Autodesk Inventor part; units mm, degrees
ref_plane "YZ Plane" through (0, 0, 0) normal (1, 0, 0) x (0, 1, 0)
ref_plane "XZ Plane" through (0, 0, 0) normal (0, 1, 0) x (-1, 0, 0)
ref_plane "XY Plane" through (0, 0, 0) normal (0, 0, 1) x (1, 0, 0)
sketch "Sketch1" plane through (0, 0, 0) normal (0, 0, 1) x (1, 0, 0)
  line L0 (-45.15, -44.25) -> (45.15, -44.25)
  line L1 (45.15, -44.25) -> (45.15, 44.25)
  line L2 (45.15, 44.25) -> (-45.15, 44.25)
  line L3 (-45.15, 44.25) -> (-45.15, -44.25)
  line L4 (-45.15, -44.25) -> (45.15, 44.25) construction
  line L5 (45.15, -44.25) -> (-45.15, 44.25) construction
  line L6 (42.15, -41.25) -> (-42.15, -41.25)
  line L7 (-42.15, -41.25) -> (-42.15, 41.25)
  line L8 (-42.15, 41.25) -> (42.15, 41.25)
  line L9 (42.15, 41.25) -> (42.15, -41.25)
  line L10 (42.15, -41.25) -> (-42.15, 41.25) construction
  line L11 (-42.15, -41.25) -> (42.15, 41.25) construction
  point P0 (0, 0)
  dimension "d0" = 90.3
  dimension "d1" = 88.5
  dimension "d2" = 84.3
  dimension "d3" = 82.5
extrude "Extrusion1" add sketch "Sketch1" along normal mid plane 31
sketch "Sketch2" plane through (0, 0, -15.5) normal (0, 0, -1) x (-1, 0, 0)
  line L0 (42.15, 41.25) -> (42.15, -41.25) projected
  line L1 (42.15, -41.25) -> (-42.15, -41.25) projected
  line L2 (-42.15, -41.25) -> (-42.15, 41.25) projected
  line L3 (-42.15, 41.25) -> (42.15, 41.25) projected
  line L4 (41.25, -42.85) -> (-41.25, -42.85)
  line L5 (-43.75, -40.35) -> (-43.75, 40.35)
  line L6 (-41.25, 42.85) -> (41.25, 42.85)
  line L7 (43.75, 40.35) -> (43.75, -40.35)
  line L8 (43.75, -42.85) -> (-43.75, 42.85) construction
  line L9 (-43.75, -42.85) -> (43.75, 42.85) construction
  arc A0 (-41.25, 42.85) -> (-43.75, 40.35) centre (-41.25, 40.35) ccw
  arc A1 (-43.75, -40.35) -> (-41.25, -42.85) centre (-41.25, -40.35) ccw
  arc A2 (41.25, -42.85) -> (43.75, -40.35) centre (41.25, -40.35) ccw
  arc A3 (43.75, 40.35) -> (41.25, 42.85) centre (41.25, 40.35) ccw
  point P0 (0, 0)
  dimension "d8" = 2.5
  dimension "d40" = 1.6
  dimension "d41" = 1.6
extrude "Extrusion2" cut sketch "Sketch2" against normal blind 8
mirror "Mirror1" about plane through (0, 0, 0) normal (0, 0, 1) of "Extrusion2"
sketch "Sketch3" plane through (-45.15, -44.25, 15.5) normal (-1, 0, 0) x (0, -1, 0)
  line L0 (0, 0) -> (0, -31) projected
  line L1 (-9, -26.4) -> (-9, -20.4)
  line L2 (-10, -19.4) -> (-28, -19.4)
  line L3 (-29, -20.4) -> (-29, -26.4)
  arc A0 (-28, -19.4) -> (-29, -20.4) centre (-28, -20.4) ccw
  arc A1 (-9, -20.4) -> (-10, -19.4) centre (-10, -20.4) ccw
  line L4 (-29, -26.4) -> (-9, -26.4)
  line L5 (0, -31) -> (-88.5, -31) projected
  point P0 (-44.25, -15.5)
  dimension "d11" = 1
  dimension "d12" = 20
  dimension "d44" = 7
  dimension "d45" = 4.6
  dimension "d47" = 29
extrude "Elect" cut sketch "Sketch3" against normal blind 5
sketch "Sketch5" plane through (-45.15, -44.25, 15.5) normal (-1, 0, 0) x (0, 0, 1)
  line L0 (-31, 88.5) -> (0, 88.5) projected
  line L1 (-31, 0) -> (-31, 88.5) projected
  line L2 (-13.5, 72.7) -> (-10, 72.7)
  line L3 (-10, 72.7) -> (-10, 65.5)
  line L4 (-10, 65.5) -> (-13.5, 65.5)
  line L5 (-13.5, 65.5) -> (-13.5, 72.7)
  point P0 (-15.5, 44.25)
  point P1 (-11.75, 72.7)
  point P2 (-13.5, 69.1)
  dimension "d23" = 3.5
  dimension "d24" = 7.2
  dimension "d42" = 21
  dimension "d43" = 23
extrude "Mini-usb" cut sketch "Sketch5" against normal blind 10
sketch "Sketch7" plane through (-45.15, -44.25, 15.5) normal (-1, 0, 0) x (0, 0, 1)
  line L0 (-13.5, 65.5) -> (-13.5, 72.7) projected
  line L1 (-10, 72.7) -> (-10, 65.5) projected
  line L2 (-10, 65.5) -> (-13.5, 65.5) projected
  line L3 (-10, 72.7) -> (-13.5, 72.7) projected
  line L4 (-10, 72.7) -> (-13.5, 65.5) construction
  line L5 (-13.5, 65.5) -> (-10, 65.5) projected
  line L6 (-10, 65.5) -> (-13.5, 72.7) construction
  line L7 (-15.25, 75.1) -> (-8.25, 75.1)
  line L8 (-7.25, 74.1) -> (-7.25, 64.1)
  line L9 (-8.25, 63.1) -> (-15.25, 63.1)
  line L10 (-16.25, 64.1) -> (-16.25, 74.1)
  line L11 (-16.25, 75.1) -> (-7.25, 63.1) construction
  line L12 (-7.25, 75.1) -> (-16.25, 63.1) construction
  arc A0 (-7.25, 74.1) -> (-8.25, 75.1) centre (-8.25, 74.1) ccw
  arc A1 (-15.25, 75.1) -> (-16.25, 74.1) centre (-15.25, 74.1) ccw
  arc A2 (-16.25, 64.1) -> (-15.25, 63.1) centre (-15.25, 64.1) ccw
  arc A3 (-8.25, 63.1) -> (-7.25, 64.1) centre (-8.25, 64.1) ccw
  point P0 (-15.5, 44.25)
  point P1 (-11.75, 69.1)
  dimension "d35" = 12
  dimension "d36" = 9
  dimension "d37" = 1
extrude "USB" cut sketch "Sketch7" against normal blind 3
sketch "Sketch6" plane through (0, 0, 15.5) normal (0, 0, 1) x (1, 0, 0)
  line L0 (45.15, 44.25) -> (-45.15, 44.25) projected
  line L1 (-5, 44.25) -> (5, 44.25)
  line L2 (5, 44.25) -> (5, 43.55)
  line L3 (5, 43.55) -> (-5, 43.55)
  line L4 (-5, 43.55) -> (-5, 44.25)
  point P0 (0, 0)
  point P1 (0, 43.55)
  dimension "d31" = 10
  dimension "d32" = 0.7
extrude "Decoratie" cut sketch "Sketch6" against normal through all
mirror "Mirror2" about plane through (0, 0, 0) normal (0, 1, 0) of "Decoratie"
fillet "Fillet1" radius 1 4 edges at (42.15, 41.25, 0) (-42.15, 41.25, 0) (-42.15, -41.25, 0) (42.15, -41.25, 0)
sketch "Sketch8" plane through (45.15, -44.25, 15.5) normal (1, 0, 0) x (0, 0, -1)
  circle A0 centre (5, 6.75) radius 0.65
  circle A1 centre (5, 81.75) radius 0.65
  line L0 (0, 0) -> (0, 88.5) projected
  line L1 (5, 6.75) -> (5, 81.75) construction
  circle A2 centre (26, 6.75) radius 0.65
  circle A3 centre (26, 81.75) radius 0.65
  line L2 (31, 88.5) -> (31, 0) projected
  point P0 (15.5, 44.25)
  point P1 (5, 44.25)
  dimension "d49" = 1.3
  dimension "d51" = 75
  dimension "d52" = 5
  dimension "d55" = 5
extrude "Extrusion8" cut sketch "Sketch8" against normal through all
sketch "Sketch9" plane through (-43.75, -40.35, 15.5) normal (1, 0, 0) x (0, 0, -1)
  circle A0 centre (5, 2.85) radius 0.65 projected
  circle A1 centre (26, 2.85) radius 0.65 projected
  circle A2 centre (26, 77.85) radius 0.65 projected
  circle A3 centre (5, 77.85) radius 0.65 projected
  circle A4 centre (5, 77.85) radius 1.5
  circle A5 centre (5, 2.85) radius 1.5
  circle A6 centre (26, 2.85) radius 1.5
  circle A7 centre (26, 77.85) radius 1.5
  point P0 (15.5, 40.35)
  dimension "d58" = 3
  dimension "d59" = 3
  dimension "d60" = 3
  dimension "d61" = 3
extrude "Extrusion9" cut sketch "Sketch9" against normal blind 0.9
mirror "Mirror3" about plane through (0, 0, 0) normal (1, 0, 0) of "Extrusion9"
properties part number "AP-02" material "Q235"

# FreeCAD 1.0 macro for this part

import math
import FreeCAD as App
import Part
import Sketcher

V = App.Vector


def edges_at(feature, points):
    """Names of the edges that pass closest to the given points."""
    edges = feature.Shape.Edges
    near = lambda p: min(range(len(edges)), key=lambda i: edges[i].distToShape(Part.Vertex(*p))[0])
    return sorted({f"Edge{near(p) + 1}" for p in points})


def add_polygon(sketch, points):
    """Adds a closed chain of lines whose ends are joined by coincident constraints."""
    first, n = sketch.GeometryCount, len(points)
    for a, b in zip(points, points[1:] + points[:1]):
        sketch.addGeometry(Part.LineSegment(App.Vector(*a, 0), App.Vector(*b, 0)), False)
    for i in range(n):
        sketch.addConstraint(Sketcher.Constraint("Coincident", first + i, 2, first + (i + 1) % n, 1))

doc = App.newDocument("Part")
params = doc.addObject("Spreadsheet::Sheet", "Params")
for row, (alias, value) in enumerate([
    ("sketch1_width", "90.3 mm"),
    ("sketch1_width2", "84.3 mm"),
    ("sketch1_height", "88.5 mm"),
    ("sketch1_height2", "82.5 mm"),
    ("pad1_length", "31 mm"),
    ("sketch2_radius", "2.5 mm"),
    ("sketch2_width", "82.5 mm"),
    ("pocket1_length", "8 mm"),
    ("sketch3_radius", "1 mm"),
    ("sketch3_width", "20 mm"),
    ("pocket2_length", "5 mm"),
    ("sketch4_width", "7.2 mm"),
    ("sketch4_height", "3.5 mm"),
    ("pocket3_length", "10 mm"),
    ("sketch5_radius", "1 mm"),
    ("sketch5_width", "10 mm"),
    ("sketch5_width2", "7.2 mm"),
    ("sketch5_height", "3.5 mm"),
    ("pocket4_length", "3 mm"),
    ("sketch6_width", "10 mm"),
    ("sketch6_height", "0.7 mm"),
    ("fillet_radius", "1 mm"),
    ("sketch7_diameter", "1.3 mm"),
    ("sketch8_diameter", "3 mm"),
    ("sketch8_diameter2", "1.3 mm"),
    ("pocket7_length", "0.9 mm"),
], start=1):
    params.set(f"A{row}", alias)
    params.set(f"B{row}", "=" + value)
    params.setAlias(f"B{row}", alias)

body = doc.addObject("PartDesign::Body", "Body")

sketch1 = doc.addObject("Sketcher::SketchObject", "Sketch")
body.addObject(sketch1)
sketch1.AttachmentSupport = (doc.XY_Plane, [""])
sketch1.MapMode = "FlatFace"
add_polygon(sketch1, [(-45, 44), (-45, -44), (45, -44), (45, 44)])
add_polygon(sketch1, [(42, 41), (42, -41), (-42, -41), (-42, 41)])
sketch1.addConstraint([
    Sketcher.Constraint("Vertical", 0),
    Sketcher.Constraint("Horizontal", 1),
    Sketcher.Constraint("Vertical", 2),
    Sketcher.Constraint("Horizontal", 3),
    Sketcher.Constraint("Vertical", 4),
    Sketcher.Constraint("Horizontal", 5),
    Sketcher.Constraint("Vertical", 6),
    Sketcher.Constraint("Horizontal", 7),
    Sketcher.Constraint("Symmetric", 0, 2, 2, 2, -1, 1),
    Sketcher.Constraint("Symmetric", 4, 2, 6, 2, -1, 1),
    Sketcher.Constraint("DistanceX", 1, 1, 1, 2, 90.3),
    Sketcher.Constraint("DistanceX", 5, 2, 5, 1, 84.3),
    Sketcher.Constraint("DistanceY", 0, 2, 0, 1, 88.5),
    Sketcher.Constraint("DistanceY", 4, 2, 4, 1, 82.5),
])
sketch1.setExpression("Constraints[18]", "Params.sketch1_width")
sketch1.setExpression("Constraints[19]", "Params.sketch1_width2")
sketch1.setExpression("Constraints[20]", "Params.sketch1_height")
sketch1.setExpression("Constraints[21]", "Params.sketch1_height2")
pad1 = doc.addObject("PartDesign::Pad", "Pad")
body.addObject(pad1)
pad1.Profile = sketch1
pad1.setExpression("Length", "Params.pad1_length")
pad1.Midplane = True

sketch2 = doc.addObject("Sketcher::SketchObject", "Sketch001")
body.addObject(sketch2)
sketch2.AttachmentSupport = (doc.XY_Plane, [""])
sketch2.MapMode = "FlatFace"
sketch2.AttachmentOffset = App.Placement(V(0, 0, -15.5), App.Rotation())
sketch2.addGeometry(Part.LineSegment(V(41.2, -42.9, 0), V(-41.2, -42.9, 0)), False)
sketch2.addGeometry(Part.ArcOfCircle(Part.Circle(V(-41.2, -40.4, 0), V(0, 0, 1), 2.5), math.radians(180), math.radians(270)), False)
sketch2.addGeometry(Part.LineSegment(V(-43.8, -40.4, 0), V(-43.8, 40.4, 0)), False)
sketch2.addGeometry(Part.ArcOfCircle(Part.Circle(V(-41.2, 40.4, 0), V(0, 0, 1), 2.5), math.radians(90), math.radians(180)), False)
sketch2.addGeometry(Part.LineSegment(V(-41.2, 42.9, 0), V(41.2, 42.9, 0)), False)
sketch2.addGeometry(Part.ArcOfCircle(Part.Circle(V(41.2, 40.4, 0), V(0, 0, 1), 2.5), math.radians(0), math.radians(90)), False)
sketch2.addGeometry(Part.LineSegment(V(43.8, 40.4, 0), V(43.8, -40.4, 0)), False)
sketch2.addGeometry(Part.ArcOfCircle(Part.Circle(V(41.2, -40.4, 0), V(0, 0, 1), 2.5), math.radians(-90), math.radians(0)), False)
add_polygon(sketch2, [(42.1, 41.2), (-42.1, 41.2), (-42.1, -41.2), (42.1, -41.2)])
sketch2.addConstraint([
    Sketcher.Constraint("Tangent", 0, 2, 1, 2),
    Sketcher.Constraint("Tangent", 1, 1, 2, 1),
    Sketcher.Constraint("Tangent", 2, 2, 3, 2),
    Sketcher.Constraint("Tangent", 3, 1, 4, 1),
    Sketcher.Constraint("Tangent", 4, 2, 5, 2),
    Sketcher.Constraint("Tangent", 5, 1, 6, 1),
    Sketcher.Constraint("Tangent", 6, 2, 7, 2),
    Sketcher.Constraint("Tangent", 7, 1, 0, 1),
    Sketcher.Constraint("Horizontal", 0),
    Sketcher.Constraint("Vertical", 2),
    Sketcher.Constraint("Horizontal", 4),
    Sketcher.Constraint("Vertical", 6),
    Sketcher.Constraint("Horizontal", 8),
    Sketcher.Constraint("Vertical", 9),
    Sketcher.Constraint("Horizontal", 10),
    Sketcher.Constraint("Vertical", 11),
    Sketcher.Constraint("Equal", 1, 3),
    Sketcher.Constraint("Equal", 3, 5),
    Sketcher.Constraint("Equal", 5, 7),
    Sketcher.Constraint("Symmetric", 1, 3, 5, 3, -1, 1),
    Sketcher.Constraint("Symmetric", 8, 2, 10, 2, -1, 1),
    Sketcher.Constraint("Equal", 4, 9),
    Sketcher.Constraint("Radius", 1, 2.5),
    Sketcher.Constraint("DistanceX", 2, 2, 8, 2, 1.6),
    Sketcher.Constraint("DistanceY", 8, 2, 3, 1, 1.6),
    Sketcher.Constraint("DistanceX", 0, 2, 0, 1, 82.5),
])
sketch2.setExpression("Constraints[26]", "Params.sketch2_radius")
sketch2.setExpression("Constraints[29]", "Params.sketch2_width")
pocket1 = doc.addObject("PartDesign::Pocket", "Pocket")
body.addObject(pocket1)
pocket1.Profile = sketch2
pocket1.setExpression("Length", "Params.pocket1_length")
pocket1.Reversed = True
doc.recompute()

mirrored = doc.addObject("PartDesign::Mirrored", "Mirrored")
body.addObject(mirrored)
mirrored.Originals = [pocket1]
mirrored.MirrorPlane = (doc.XY_Plane, [""])
body.Tip = mirrored

sketch3 = doc.addObject("Sketcher::SketchObject", "Sketch002")
body.addObject(sketch3)
sketch3.AttachmentSupport = (doc.YZ_Plane, [""])
sketch3.MapMode = "FlatFace"
sketch3.AttachmentOffset = App.Placement(V(0, 0, -45.15), App.Rotation())
sketch3.addGeometry([
    Part.LineSegment(V(-15.2, -10.9, 0), V(-35.2, -10.9, 0)),
    Part.LineSegment(V(-35.2, -10.9, 0), V(-35.2, -4.9, 0)),
    Part.ArcOfCircle(Part.Circle(V(-34.2, -4.9, 0), V(0, 0, 1), 1), math.radians(90), math.radians(180)),
    Part.LineSegment(V(-34.2, -3.9, 0), V(-16.2, -3.9, 0)),
    Part.ArcOfCircle(Part.Circle(V(-16.2, -4.9, 0), V(0, 0, 1), 1), math.radians(0), math.radians(90)),
    Part.LineSegment(V(-15.2, -4.9, 0), V(-15.2, -10.9, 0)),
], False)
sketch3.addConstraint([
    Sketcher.Constraint("Coincident", 0, 2, 1, 1),
    Sketcher.Constraint("Tangent", 1, 2, 2, 2),
    Sketcher.Constraint("Tangent", 2, 1, 3, 1),
    Sketcher.Constraint("Tangent", 3, 2, 4, 2),
    Sketcher.Constraint("Tangent", 4, 1, 5, 1),
    Sketcher.Constraint("Coincident", 5, 2, 0, 1),
    Sketcher.Constraint("Horizontal", 0),
    Sketcher.Constraint("Vertical", 1),
    Sketcher.Constraint("Horizontal", 3),
    Sketcher.Constraint("Vertical", 5),
    Sketcher.Constraint("Equal", 2, 4),
    Sketcher.Constraint("Radius", 2, 1.0),
    Sketcher.Constraint("DistanceX", 0, 2, 0, 1, 20.0),
    Sketcher.Constraint("DistanceY", 0, 2, 2, 1, 7.0),
    Sketcher.Constraint("DistanceY", 2, 3, -1, 1, 4.9),
    Sketcher.Constraint("DistanceX", 2, 3, -1, 1, 34.25),
])
sketch3.setExpression("Constraints[11]", "Params.sketch3_radius")
sketch3.setExpression("Constraints[12]", "Params.sketch3_width")
pocket2 = doc.addObject("PartDesign::Pocket", "Pocket001")
body.addObject(pocket2)
pocket2.Profile = sketch3
pocket2.setExpression("Length", "Params.pocket2_length")
pocket2.Reversed = True

sketch4 = doc.addObject("Sketcher::SketchObject", "Sketch003")
body.addObject(sketch4)
sketch4.AttachmentSupport = (doc.YZ_Plane, [""])
sketch4.MapMode = "FlatFace"
sketch4.AttachmentOffset = App.Placement(V(0, 0, -45.15), App.Rotation())
add_polygon(sketch4, [(28.4, 5.5), (28.4, 2), (21.2, 2), (21.2, 5.5)])
sketch4.addConstraint([
    Sketcher.Constraint("Vertical", 0),
    Sketcher.Constraint("Horizontal", 1),
    Sketcher.Constraint("Vertical", 2),
    Sketcher.Constraint("Horizontal", 3),
    Sketcher.Constraint("DistanceX", 1, 2, 1, 1, 7.2),
    Sketcher.Constraint("DistanceY", 0, 2, 0, 1, 3.5),
    Sketcher.Constraint("DistanceY", -1, 1, 0, 2, 2.0),
    Sketcher.Constraint("DistanceX", -1, 1, 0, 2, 28.45),
])
sketch4.setExpression("Constraints[8]", "Params.sketch4_width")
sketch4.setExpression("Constraints[9]", "Params.sketch4_height")
pocket3 = doc.addObject("PartDesign::Pocket", "Pocket002")
body.addObject(pocket3)
pocket3.Profile = sketch4
pocket3.setExpression("Length", "Params.pocket3_length")
pocket3.Reversed = True

sketch5 = doc.addObject("Sketcher::SketchObject", "Sketch004")
body.addObject(sketch5)
sketch5.AttachmentSupport = (doc.YZ_Plane, [""])
sketch5.MapMode = "FlatFace"
sketch5.AttachmentOffset = App.Placement(V(0, 0, -45.15), App.Rotation())
sketch5.addGeometry(Part.LineSegment(V(30.9, 7.2, 0), V(30.9, 0.2, 0)), False)
sketch5.addGeometry(Part.ArcOfCircle(Part.Circle(V(29.9, 0.2, 0), V(0, 0, 1), 1), math.radians(-90), math.radians(0)), False)
sketch5.addGeometry(Part.LineSegment(V(29.9, -0.8, 0), V(19.9, -0.8, 0)), False)
sketch5.addGeometry(Part.ArcOfCircle(Part.Circle(V(19.9, 0.2, 0), V(0, 0, 1), 1), math.radians(180), math.radians(270)), False)
sketch5.addGeometry(Part.LineSegment(V(18.9, 0.2, 0), V(18.9, 7.2, 0)), False)
sketch5.addGeometry(Part.ArcOfCircle(Part.Circle(V(19.9, 7.2, 0), V(0, 0, 1), 1), math.radians(90), math.radians(180)), False)
sketch5.addGeometry(Part.LineSegment(V(19.9, 8.2, 0), V(29.9, 8.2, 0)), False)
sketch5.addGeometry(Part.ArcOfCircle(Part.Circle(V(29.9, 7.2, 0), V(0, 0, 1), 1), math.radians(0), math.radians(90)), False)
add_polygon(sketch5, [(21.2, 5.5), (21.2, 2), (28.4, 2), (28.4, 5.5)])
sketch5.addConstraint([
    Sketcher.Constraint("Tangent", 0, 2, 1, 2),
    Sketcher.Constraint("Tangent", 1, 1, 2, 1),
    Sketcher.Constraint("Tangent", 2, 2, 3, 2),
    Sketcher.Constraint("Tangent", 3, 1, 4, 1),
    Sketcher.Constraint("Tangent", 4, 2, 5, 2),
    Sketcher.Constraint("Tangent", 5, 1, 6, 1),
    Sketcher.Constraint("Tangent", 6, 2, 7, 2),
    Sketcher.Constraint("Tangent", 7, 1, 0, 1),
    Sketcher.Constraint("Vertical", 0),
    Sketcher.Constraint("Horizontal", 2),
    Sketcher.Constraint("Vertical", 4),
    Sketcher.Constraint("Horizontal", 6),
    Sketcher.Constraint("Vertical", 8),
    Sketcher.Constraint("Horizontal", 9),
    Sketcher.Constraint("Vertical", 10),
    Sketcher.Constraint("Horizontal", 11),
    Sketcher.Constraint("Equal", 1, 3),
    Sketcher.Constraint("Equal", 3, 5),
    Sketcher.Constraint("Equal", 5, 7),
    Sketcher.Constraint("Radius", 1, 1.0),
    Sketcher.Constraint("DistanceY", 2, 2, 5, 1, 9.0),
    Sketcher.Constraint("DistanceX", 2, 2, 2, 1, 10.0),
    Sketcher.Constraint("DistanceX", 9, 1, 9, 2, 7.2),
    Sketcher.Constraint("DistanceY", 8, 2, 8, 1, 3.5),
    Sketcher.Constraint("DistanceY", -1, 1, 8, 2, 2.0),
    Sketcher.Constraint("DistanceX", 3, 3, 8, 2, 1.4),
    Sketcher.Constraint("DistanceX", -1, 1, 1, 3, 29.85),
    Sketcher.Constraint("DistanceY", -1, 1, 1, 3, 0.25),
])
sketch5.setExpression("Constraints[23]", "Params.sketch5_radius")
sketch5.setExpression("Constraints[25]", "Params.sketch5_width")
sketch5.setExpression("Constraints[26]", "Params.sketch5_width2")
sketch5.setExpression("Constraints[27]", "Params.sketch5_height")
pocket4 = doc.addObject("PartDesign::Pocket", "Pocket003")
body.addObject(pocket4)
pocket4.Profile = sketch5
pocket4.setExpression("Length", "Params.pocket4_length")
pocket4.Reversed = True

sketch6 = doc.addObject("Sketcher::SketchObject", "Sketch005")
body.addObject(sketch6)
sketch6.AttachmentSupport = (doc.XY_Plane, [""])
sketch6.MapMode = "FlatFace"
sketch6.AttachmentOffset = App.Placement(V(0, 0, 15.5), App.Rotation())
add_polygon(sketch6, [(5, 43.5), (5, 44.2), (-5, 44.2), (-5, 43.5)])
sketch6.addConstraint([
    Sketcher.Constraint("Vertical", 0),
    Sketcher.Constraint("Horizontal", 1),
    Sketcher.Constraint("Vertical", 2),
    Sketcher.Constraint("Horizontal", 3),
    Sketcher.Constraint("DistanceX", 1, 2, 1, 1, 10.0),
    Sketcher.Constraint("DistanceY", 0, 1, 0, 2, 0.7),
    Sketcher.Constraint("DistanceX", -1, 1, 0, 2, 5.0),
    Sketcher.Constraint("DistanceY", -1, 1, 0, 2, 44.25),
])
sketch6.setExpression("Constraints[8]", "Params.sketch6_width")
sketch6.setExpression("Constraints[9]", "Params.sketch6_height")
pocket5 = doc.addObject("PartDesign::Pocket", "Pocket004")
body.addObject(pocket5)
pocket5.Profile = sketch6
pocket5.Type = "ThroughAll"
doc.recompute()

mirrored2 = doc.addObject("PartDesign::Mirrored", "Mirrored001")
body.addObject(mirrored2)
mirrored2.Originals = [pocket5]
mirrored2.MirrorPlane = (doc.XZ_Plane, [""])
body.Tip = mirrored2
doc.recompute()

fillet = doc.addObject("PartDesign::Fillet", "Fillet")
body.addObject(fillet)
fillet.Base = (mirrored2, edges_at(mirrored2, [
    (42.15, 41.25, 0),
    (-42.15, 41.25, 0),
    (-42.15, -41.25, 0),
    (42.15, -41.25, 0),
]))
fillet.setExpression("Radius", "Params.fillet_radius")

sketch7 = doc.addObject("Sketcher::SketchObject", "Sketch006")
body.addObject(sketch7)
sketch7.AttachmentSupport = (doc.YZ_Plane, [""])
sketch7.MapMode = "FlatFace"
sketch7.AttachmentOffset = App.Placement(V(0, 0, 45.15), App.Rotation())
sketch7.addGeometry([
    Part.Circle(V(-37.5, 10.5, 0), V(0, 0, 1), 0.7),
    Part.Circle(V(37.5, 10.5, 0), V(0, 0, 1), 0.7),
    Part.Circle(V(-37.5, -10.5, 0), V(0, 0, 1), 0.7),
    Part.Circle(V(37.5, -10.5, 0), V(0, 0, 1), 0.7),
], False)
sketch7.addConstraint([
    Sketcher.Constraint("Equal", 0, 1),
    Sketcher.Constraint("Equal", 1, 2),
    Sketcher.Constraint("Equal", 2, 3),
    Sketcher.Constraint("Symmetric", 1, 3, 2, 3, -1, 1),
    Sketcher.Constraint("Symmetric", 0, 3, 3, 3, -1, 1),
    Sketcher.Constraint("Symmetric", 0, 3, 1, 3, -2),
    Sketcher.Constraint("Diameter", 0, 1.3),
    Sketcher.Constraint("DistanceX", 0, 3, 1, 3, 75.0),
    Sketcher.Constraint("DistanceY", 2, 3, 0, 3, 21.0),
])
sketch7.setExpression("Constraints[6]", "Params.sketch7_diameter")
pocket6 = doc.addObject("PartDesign::Pocket", "Pocket005")
body.addObject(pocket6)
pocket6.Profile = sketch7
pocket6.Type = "ThroughAll"

sketch8 = doc.addObject("Sketcher::SketchObject", "Sketch007")
body.addObject(sketch8)
sketch8.AttachmentSupport = (doc.YZ_Plane, [""])
sketch8.MapMode = "FlatFace"
sketch8.AttachmentOffset = App.Placement(V(0, 0, -43.75), App.Rotation())
sketch8.addGeometry([
    Part.Circle(V(37.5, 10.5, 0), V(0, 0, 1), 1.5),
    Part.Circle(V(37.5, 10.5, 0), V(0, 0, 1), 0.7),
    Part.Circle(V(-37.5, 10.5, 0), V(0, 0, 1), 1.5),
    Part.Circle(V(-37.5, 10.5, 0), V(0, 0, 1), 0.7),
    Part.Circle(V(-37.5, -10.5, 0), V(0, 0, 1), 1.5),
    Part.Circle(V(-37.5, -10.5, 0), V(0, 0, 1), 0.7),
    Part.Circle(V(37.5, -10.5, 0), V(0, 0, 1), 1.5),
    Part.Circle(V(37.5, -10.5, 0), V(0, 0, 1), 0.7),
], False)
sketch8.addConstraint([
    Sketcher.Constraint("Coincident", 1, 3, 0, 3),
    Sketcher.Constraint("Coincident", 3, 3, 2, 3),
    Sketcher.Constraint("Coincident", 5, 3, 4, 3),
    Sketcher.Constraint("Coincident", 7, 3, 6, 3),
    Sketcher.Constraint("Equal", 0, 2),
    Sketcher.Constraint("Equal", 1, 3),
    Sketcher.Constraint("Equal", 2, 4),
    Sketcher.Constraint("Equal", 3, 5),
    Sketcher.Constraint("Equal", 4, 6),
    Sketcher.Constraint("Equal", 5, 7),
    Sketcher.Constraint("Symmetric", 0, 3, 4, 3, -1, 1),
    Sketcher.Constraint("Symmetric", 2, 3, 6, 3, -1, 1),
    Sketcher.Constraint("Symmetric", 0, 3, 2, 3, -2),
    Sketcher.Constraint("Diameter", 0, 3.0),
    Sketcher.Constraint("Diameter", 1, 1.3),
    Sketcher.Constraint("DistanceX", 2, 3, 0, 3, 75.0),
    Sketcher.Constraint("DistanceY", 4, 3, 2, 3, 21.0),
])
sketch8.setExpression("Constraints[13]", "Params.sketch8_diameter")
sketch8.setExpression("Constraints[14]", "Params.sketch8_diameter2")
pocket7 = doc.addObject("PartDesign::Pocket", "Pocket006")
body.addObject(pocket7)
pocket7.Profile = sketch8
pocket7.setExpression("Length", "Params.pocket7_length")
doc.recompute()

mirrored3 = doc.addObject("PartDesign::Mirrored", "Mirrored002")
body.addObject(mirrored3)
mirrored3.Originals = [pocket7]
mirrored3.MirrorPlane = (doc.YZ_Plane, [""])
body.Tip = mirrored3

doc.recompute()
